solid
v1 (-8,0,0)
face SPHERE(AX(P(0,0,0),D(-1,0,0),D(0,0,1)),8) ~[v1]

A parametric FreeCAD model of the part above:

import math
import FreeCAD as App
import Part
import Sketcher

doc = App.newDocument("Part")
body = doc.addObject("PartDesign::Body", "Body")

sketch1 = body.newObject("Sketcher::SketchObject", "Sketch")
sketch1.AttachmentSupport = (doc.getObject("XZ_Plane"), [""])
sketch1.MapMode = "FlatFace"
sketch1.addGeometry([
    Part.LineSegment(App.Vector(8, 0, 0), App.Vector(-8, 0, 0)),
    Part.ArcOfCircle(Part.Circle(App.Vector(0, 0, 0), App.Vector(0, 0, 1), 8), math.radians(0), math.radians(180)),
], False)
sketch1.addConstraint([
    Sketcher.Constraint("Coincident", 0, 1, 1, 1),
    Sketcher.Constraint("Coincident", 1, 2, 0, 2),
    Sketcher.Constraint("Horizontal", 0),
    Sketcher.Constraint("Coincident", 1, 3, -1, 1),
    Sketcher.Constraint("PointOnObject", 0, 1, -1),
    Sketcher.Constraint("Radius", 1, 8.0),
])
revolution = body.newObject("PartDesign::Revolution", "Revolution")
revolution.Profile = sketch1
revolution.ReferenceAxis = (sketch1, ["H_Axis"])
revolution.Angle = 360

doc.recompute()
